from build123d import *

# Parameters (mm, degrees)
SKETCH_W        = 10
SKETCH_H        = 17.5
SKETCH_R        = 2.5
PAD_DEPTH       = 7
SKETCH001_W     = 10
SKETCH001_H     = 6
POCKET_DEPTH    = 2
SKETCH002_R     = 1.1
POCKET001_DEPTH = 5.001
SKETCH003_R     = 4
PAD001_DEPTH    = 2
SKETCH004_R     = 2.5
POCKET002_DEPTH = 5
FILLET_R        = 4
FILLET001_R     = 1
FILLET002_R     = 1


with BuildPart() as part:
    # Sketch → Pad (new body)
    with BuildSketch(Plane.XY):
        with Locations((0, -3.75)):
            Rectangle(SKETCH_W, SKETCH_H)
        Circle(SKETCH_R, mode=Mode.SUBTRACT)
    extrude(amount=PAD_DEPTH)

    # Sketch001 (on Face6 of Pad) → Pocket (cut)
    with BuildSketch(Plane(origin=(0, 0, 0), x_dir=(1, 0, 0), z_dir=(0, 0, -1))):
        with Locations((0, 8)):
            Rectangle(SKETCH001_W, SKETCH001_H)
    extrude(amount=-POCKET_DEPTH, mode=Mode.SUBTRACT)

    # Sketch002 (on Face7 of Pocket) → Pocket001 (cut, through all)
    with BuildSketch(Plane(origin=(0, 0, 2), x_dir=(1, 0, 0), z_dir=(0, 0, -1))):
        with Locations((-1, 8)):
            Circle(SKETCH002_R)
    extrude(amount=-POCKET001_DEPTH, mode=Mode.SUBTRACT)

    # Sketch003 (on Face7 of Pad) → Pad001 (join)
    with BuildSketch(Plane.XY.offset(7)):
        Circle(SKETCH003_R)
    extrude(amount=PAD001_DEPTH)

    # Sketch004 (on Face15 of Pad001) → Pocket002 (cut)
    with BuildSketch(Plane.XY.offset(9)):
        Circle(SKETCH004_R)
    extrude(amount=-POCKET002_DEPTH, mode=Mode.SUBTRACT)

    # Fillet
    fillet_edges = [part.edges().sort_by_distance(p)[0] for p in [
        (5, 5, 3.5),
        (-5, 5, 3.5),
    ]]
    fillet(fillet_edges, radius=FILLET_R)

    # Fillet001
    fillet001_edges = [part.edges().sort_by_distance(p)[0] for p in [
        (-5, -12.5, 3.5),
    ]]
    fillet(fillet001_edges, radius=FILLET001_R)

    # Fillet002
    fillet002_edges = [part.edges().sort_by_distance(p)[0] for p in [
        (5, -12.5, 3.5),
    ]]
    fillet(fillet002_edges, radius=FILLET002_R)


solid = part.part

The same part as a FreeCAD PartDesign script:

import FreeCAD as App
import Part
import Sketcher


def edges_at(feature, points):
    """Names of the edges that pass closest to the given points."""
    edges = feature.Shape.Edges
    near = lambda p: min(range(len(edges)), key=lambda i: edges[i].distToShape(Part.Vertex(*p))[0])
    return sorted({f"Edge{near(p) + 1}" for p in points})


def add_polygon(sketch, points):
    """Adds a closed chain of lines whose ends are joined by coincident constraints."""
    first, n = sketch.GeometryCount, len(points)
    for a, b in zip(points, points[1:] + points[:1]):
        sketch.addGeometry(Part.LineSegment(App.Vector(*a, 0), App.Vector(*b, 0)), False)
    for i in range(n):
        sketch.addConstraint(Sketcher.Constraint("Coincident", first + i, 2, first + (i + 1) % n, 1))

doc = App.newDocument("Part")
body = doc.addObject("PartDesign::Body", "Body")

# Sketch on XY plane
sketch1 = body.newObject("Sketcher::SketchObject", "Sketch")
sketch1.AttachmentSupport = (doc.getObject("XY_Plane"), [""])
sketch1.MapMode = "FlatFace"
add_polygon(sketch1, [(-5, 5), (-5, -12.5), (5, -12.5), (5, 5)])  # lines 0-3
sketch1.addGeometry(Part.Circle(App.Vector(0, 0, 0), App.Vector(0, 0, 1), 2.5), False)  # 4
sketch1.addConstraint(Sketcher.Constraint("Vertical", 0))
sketch1.addConstraint(Sketcher.Constraint("Horizontal", 1))
sketch1.addConstraint(Sketcher.Constraint("Vertical", 2))
sketch1.addConstraint(Sketcher.Constraint("Horizontal", 3))
sketch1.addConstraint(Sketcher.Constraint("Coincident", 4, 3, -1, 1))
sketch1.addConstraint(Sketcher.Constraint("Diameter", 4, 5.0))
sketch1.addConstraint(Sketcher.Constraint("DistanceX", 1, 1, 1, 2, 10.0))
sketch1.addConstraint(Sketcher.Constraint("DistanceY", 0, 2, 0, 1, 17.5))
sketch1.addConstraint(Sketcher.Constraint("DistanceX", 0, 2, -1, 1, 5.0))
sketch1.addConstraint(Sketcher.Constraint("DistanceY", -1, 1, 2, 2, 5.0))
pad1 = body.newObject("PartDesign::Pad", "Pad")
pad1.Profile = sketch1
pad1.Length = 7

# Sketch on XY plane
sketch2 = body.newObject("Sketcher::SketchObject", "Sketch001")
sketch2.AttachmentSupport = (doc.getObject("XY_Plane"), [""])
sketch2.MapMode = "FlatFace"
add_polygon(sketch2, [(-5, -11), (-5, -5), (5, -5), (5, -11)])  # lines 0-3
sketch2.addConstraint(Sketcher.Constraint("Vertical", 0))
sketch2.addConstraint(Sketcher.Constraint("Horizontal", 1))
sketch2.addConstraint(Sketcher.Constraint("Vertical", 2))
sketch2.addConstraint(Sketcher.Constraint("Horizontal", 3))
sketch2.addConstraint(Sketcher.Constraint("DistanceX", 1, 1, 1, 2, 10.0))
sketch2.addConstraint(Sketcher.Constraint("DistanceY", 0, 1, 0, 2, 6.0))
sketch2.addConstraint(Sketcher.Constraint("DistanceX", 0, 2, -1, 1, 5.0))
sketch2.addConstraint(Sketcher.Constraint("DistanceY", 0, 2, -1, 1, 5.0))
pocket1 = body.newObject("PartDesign::Pocket", "Pocket")
pocket1.Profile = sketch2
pocket1.Length = 2
pocket1.Reversed = True

# Sketch on XY plane
sketch3 = body.newObject("Sketcher::SketchObject", "Sketch002")
sketch3.AttachmentSupport = (doc.getObject("XY_Plane"), [""])
sketch3.MapMode = "FlatFace"
sketch3.AttachmentOffset = App.Placement(App.Vector(0, 0, 2), App.Rotation())
sketch3.addGeometry(Part.Circle(App.Vector(-1, -8, 0), App.Vector(0, 0, 1), 1.1), False)
sketch3.addConstraint(Sketcher.Constraint("Diameter", 0, 2.2))
sketch3.addConstraint(Sketcher.Constraint("DistanceX", 0, 3, -1, 1, 1.0))
sketch3.addConstraint(Sketcher.Constraint("DistanceY", 0, 3, -1, 1, 8.0))
pocket2 = body.newObject("PartDesign::Pocket", "Pocket001")
pocket2.Profile = sketch3
pocket2.Type = "ThroughAll"
pocket2.Reversed = True

# Sketch on XY plane
sketch4 = body.newObject("Sketcher::SketchObject", "Sketch003")
sketch4.AttachmentSupport = (doc.getObject("XY_Plane"), [""])
sketch4.MapMode = "FlatFace"
sketch4.AttachmentOffset = App.Placement(App.Vector(0, 0, 7), App.Rotation())
sketch4.addGeometry(Part.Circle(App.Vector(0, 0, 0), App.Vector(0, 0, 1), 4), False)
sketch4.addConstraint(Sketcher.Constraint("Coincident", 0, 3, -1, 1))
sketch4.addConstraint(Sketcher.Constraint("Diameter", 0, 8.0))
pad2 = body.newObject("PartDesign::Pad", "Pad001")
pad2.Profile = sketch4
pad2.Length = 2

# Sketch on XY plane
sketch5 = body.newObject("Sketcher::SketchObject", "Sketch004")
sketch5.AttachmentSupport = (doc.getObject("XY_Plane"), [""])
sketch5.MapMode = "FlatFace"
sketch5.AttachmentOffset = App.Placement(App.Vector(0, 0, 9), App.Rotation())
sketch5.addGeometry(Part.Circle(App.Vector(0, 0, 0), App.Vector(0, 0, 1), 2.5), False)
sketch5.addConstraint(Sketcher.Constraint("Coincident", 0, 3, -1, 1))
sketch5.addConstraint(Sketcher.Constraint("Diameter", 0, 5.0))
pocket3 = body.newObject("PartDesign::Pocket", "Pocket002")
pocket3.Profile = sketch5
pocket3.Length = 5
doc.recompute()

fillet = body.newObject("PartDesign::Fillet", "Fillet")
fillet.Base = (pocket3, edges_at(pocket3, [(5, 5, 3.5), (-5, 5, 3.5)]))
fillet.Radius = 4
doc.recompute()

fillet2 = body.newObject("PartDesign::Fillet", "Fillet001")
fillet2.Base = (fillet, edges_at(fillet, [(-5, -12.5, 3.5)]))
fillet2.Radius = 1
doc.recompute()

fillet3 = body.newObject("PartDesign::Fillet", "Fillet002")
fillet3.Base = (fillet2, edges_at(fillet2, [(5, -12.5, 3.5)]))
fillet3.Radius = 1

doc.recompute()
